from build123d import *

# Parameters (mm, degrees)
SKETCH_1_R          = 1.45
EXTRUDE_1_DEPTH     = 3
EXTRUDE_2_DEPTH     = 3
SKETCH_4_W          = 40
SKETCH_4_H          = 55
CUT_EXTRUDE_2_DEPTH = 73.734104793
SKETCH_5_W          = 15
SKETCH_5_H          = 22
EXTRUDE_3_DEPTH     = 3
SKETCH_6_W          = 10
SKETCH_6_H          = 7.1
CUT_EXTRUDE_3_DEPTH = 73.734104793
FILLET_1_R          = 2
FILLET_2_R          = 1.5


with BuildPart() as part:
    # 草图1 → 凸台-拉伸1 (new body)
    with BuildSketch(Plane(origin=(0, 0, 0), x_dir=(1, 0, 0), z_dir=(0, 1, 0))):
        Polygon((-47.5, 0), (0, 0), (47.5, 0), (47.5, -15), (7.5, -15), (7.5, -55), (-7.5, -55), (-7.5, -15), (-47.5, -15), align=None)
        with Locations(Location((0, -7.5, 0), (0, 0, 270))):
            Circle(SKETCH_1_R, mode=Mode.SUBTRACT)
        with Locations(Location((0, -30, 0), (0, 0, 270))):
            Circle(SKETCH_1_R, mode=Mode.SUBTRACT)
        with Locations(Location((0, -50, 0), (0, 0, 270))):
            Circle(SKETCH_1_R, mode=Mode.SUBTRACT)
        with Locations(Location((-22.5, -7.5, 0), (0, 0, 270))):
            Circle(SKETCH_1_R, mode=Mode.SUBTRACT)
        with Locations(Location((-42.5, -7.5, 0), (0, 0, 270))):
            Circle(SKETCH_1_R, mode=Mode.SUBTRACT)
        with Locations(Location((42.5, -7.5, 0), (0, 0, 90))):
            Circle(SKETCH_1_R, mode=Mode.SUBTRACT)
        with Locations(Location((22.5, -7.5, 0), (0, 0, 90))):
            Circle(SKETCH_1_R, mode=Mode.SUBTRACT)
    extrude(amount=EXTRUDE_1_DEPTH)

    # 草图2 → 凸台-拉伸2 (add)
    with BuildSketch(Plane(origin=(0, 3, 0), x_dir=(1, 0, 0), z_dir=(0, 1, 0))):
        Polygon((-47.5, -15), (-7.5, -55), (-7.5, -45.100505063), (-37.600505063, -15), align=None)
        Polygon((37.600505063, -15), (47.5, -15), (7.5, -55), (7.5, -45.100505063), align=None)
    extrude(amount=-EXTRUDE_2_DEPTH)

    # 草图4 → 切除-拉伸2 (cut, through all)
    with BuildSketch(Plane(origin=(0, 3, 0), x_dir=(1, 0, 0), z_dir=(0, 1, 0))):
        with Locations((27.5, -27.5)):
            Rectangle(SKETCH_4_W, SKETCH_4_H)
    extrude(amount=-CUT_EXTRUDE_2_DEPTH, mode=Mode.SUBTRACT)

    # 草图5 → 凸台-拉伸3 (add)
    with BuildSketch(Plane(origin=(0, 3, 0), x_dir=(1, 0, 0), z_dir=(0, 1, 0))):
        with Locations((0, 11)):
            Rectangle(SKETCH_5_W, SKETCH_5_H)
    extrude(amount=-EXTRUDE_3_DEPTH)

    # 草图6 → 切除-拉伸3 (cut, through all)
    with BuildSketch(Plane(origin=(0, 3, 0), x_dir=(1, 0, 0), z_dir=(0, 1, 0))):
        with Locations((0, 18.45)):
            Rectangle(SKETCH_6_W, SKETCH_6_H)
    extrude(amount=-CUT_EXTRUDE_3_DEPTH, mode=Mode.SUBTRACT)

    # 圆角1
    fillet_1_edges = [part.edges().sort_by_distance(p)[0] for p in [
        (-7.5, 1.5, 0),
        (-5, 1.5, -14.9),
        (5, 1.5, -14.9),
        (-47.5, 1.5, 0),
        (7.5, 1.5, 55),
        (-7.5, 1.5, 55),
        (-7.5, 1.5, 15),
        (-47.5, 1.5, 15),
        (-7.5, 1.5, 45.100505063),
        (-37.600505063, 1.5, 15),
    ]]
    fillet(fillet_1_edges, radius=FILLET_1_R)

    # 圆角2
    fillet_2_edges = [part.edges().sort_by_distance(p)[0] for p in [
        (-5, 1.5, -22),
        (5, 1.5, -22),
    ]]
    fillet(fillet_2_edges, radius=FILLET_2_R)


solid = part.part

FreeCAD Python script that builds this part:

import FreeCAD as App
import Part
import Sketcher

V = App.Vector


def edges_at(feature, points):
    """Names of the edges that pass closest to the given points."""
    edges = feature.Shape.Edges
    near = lambda p: min(range(len(edges)), key=lambda i: edges[i].distToShape(Part.Vertex(*p))[0])
    return sorted({f"Edge{near(p) + 1}" for p in points})


def add_polygon(sketch, points):
    """Adds a closed chain of lines whose ends are joined by coincident constraints."""
    first, n = sketch.GeometryCount, len(points)
    for a, b in zip(points, points[1:] + points[:1]):
        sketch.addGeometry(Part.LineSegment(App.Vector(*a, 0), App.Vector(*b, 0)), False)
    for i in range(n):
        sketch.addConstraint(Sketcher.Constraint("Coincident", first + i, 2, first + (i + 1) % n, 1))

doc = App.newDocument("Part")
body = doc.addObject("PartDesign::Body", "Body")

# Sketch on XZ plane
sketch1 = body.newObject("Sketcher::SketchObject", "Sketch")
sketch1.AttachmentSupport = (doc.getObject("XZ_Plane"), [""])
sketch1.MapMode = "FlatFace"
add_polygon(sketch1, [(47.5, 0), (-47.5, 0), (-47.5, 15), (-7.5, 15), (-7.5, 55), (7.5, 55), (7.5, 15), (47.5, 15)])  # lines 0-7
sketch1.addGeometry(Part.Circle(V(0, 50, 0), V(0, 0, 1), 1.4), False)  # 8
sketch1.addGeometry(Part.Circle(V(0, 30, 0), V(0, 0, 1), 1.4), False)  # 9
sketch1.addGeometry(Part.Circle(V(42.5, 7.5, 0), V(0, 0, 1), 1.4), False)  # 10
sketch1.addGeometry(Part.Circle(V(22.5, 7.5, 0), V(0, 0, 1), 1.4), False)  # 11
sketch1.addGeometry(Part.Circle(V(0, 7.5, 0), V(0, 0, 1), 1.4), False)  # 12
sketch1.addGeometry(Part.Circle(V(-22.5, 7.5, 0), V(0, 0, 1), 1.4), False)  # 13
sketch1.addGeometry(Part.Circle(V(-42.5, 7.5, 0), V(0, 0, 1), 1.4), False)  # 14
sketch1.addConstraint([
    Sketcher.Constraint("Horizontal", 0),
    Sketcher.Constraint("Vertical", 1),
    Sketcher.Constraint("Horizontal", 2),
    Sketcher.Constraint("Vertical", 3),
    Sketcher.Constraint("Horizontal", 4),
    Sketcher.Constraint("Vertical", 5),
    Sketcher.Constraint("Horizontal", 6),
    Sketcher.Constraint("Vertical", 7),
    Sketcher.Constraint("Equal", 8, 9),
    Sketcher.Constraint("Equal", 9, 10),
    Sketcher.Constraint("Equal", 10, 11),
    Sketcher.Constraint("Equal", 11, 12),
    Sketcher.Constraint("Equal", 12, 13),
    Sketcher.Constraint("Equal", 13, 14),
    Sketcher.Constraint("Symmetric", 0, 2, 7, 2, -1, 1),
    Sketcher.Constraint("Symmetric", 11, 3, 13, 3, -2),
    Sketcher.Constraint("Symmetric", 10, 3, 14, 3, -2),
    Sketcher.Constraint("Symmetric", 2, 2, 5, 2, -2),
    Sketcher.Constraint("PointOnObject", 8, 3, -2),
    Sketcher.Constraint("PointOnObject", 9, 3, -2),
    Sketcher.Constraint("PointOnObject", 12, 3, -2),
    Sketcher.Constraint("Horizontal", 10, 3, 11, 3),
    Sketcher.Constraint("Horizontal", 11, 3, 12, 3),
    Sketcher.Constraint("Equal", 4, 1),
    Sketcher.Constraint("Equal", 6, 3),
    Sketcher.Constraint("Diameter", 8, 2.9),
    Sketcher.Constraint("DistanceX", 0, 2, 0, 1, 95.0),
    Sketcher.Constraint("DistanceX", 2, 1, 2, 2, 40.0),
    Sketcher.Constraint("DistanceY", -1, 1, 8, 3, 50.0),
    Sketcher.Constraint("DistanceY", -1, 1, 9, 3, 30.0),
    Sketcher.Constraint("DistanceX", 11, 3, 10, 3, 20.0),
    Sketcher.Constraint("DistanceX", 13, 3, 11, 3, 45.0),
    Sketcher.Constraint("DistanceY", -1, 1, 10, 3, 7.5),
])
pad1 = body.newObject("PartDesign::Pad", "Pad")
pad1.Profile = sketch1
pad1.Length = 3
pad1.Reversed = True

# Sketch on XZ plane
sketch2 = body.newObject("Sketcher::SketchObject", "Sketch001")
sketch2.AttachmentSupport = (doc.getObject("XZ_Plane"), [""])
sketch2.MapMode = "FlatFace"
sketch2.AttachmentOffset = App.Placement(V(0, 0, -3), App.Rotation())
add_polygon(sketch2, [(-48, 15), (-8, 55), (-8, 45), (-38, 15)])  # lines 0-3
add_polygon(sketch2, [(48, 15), (38, 15), (8, 45), (8, 55)])  # lines 4-7
sketch2.addConstraint([
    Sketcher.Constraint("Vertical", 1),
    Sketcher.Constraint("Horizontal", 3),
    Sketcher.Constraint("Horizontal", 4),
    Sketcher.Constraint("Vertical", 6),
    Sketcher.Constraint("Symmetric", 2, 2, 4, 2, -2),
    Sketcher.Constraint("Symmetric", 1, 2, 5, 2, -2),
    Sketcher.Constraint("Parallel", 0, 2),
    Sketcher.Constraint("Perpendicular", 2, 5),
    Sketcher.Constraint("Parallel", 5, 7),
    Sketcher.Constraint("Horizontal", 0, 2, 6, 2),
    Sketcher.Constraint("DistanceY", -1, 1, 0, 2, 55.0),
    Sketcher.Constraint("DistanceY", -1, 1, 2, 2, 15.0),
    Sketcher.Constraint("DistanceX", 1, 2, 5, 2, 15.0),
    Sketcher.Constraint("DistanceX", 3, 2, 3, 1, 9.899495),
])
pad2 = body.newObject("PartDesign::Pad", "Pad001")
pad2.Profile = sketch2
pad2.Length = 3

# Sketch on XZ plane
sketch3 = body.newObject("Sketcher::SketchObject", "Sketch002")
sketch3.AttachmentSupport = (doc.getObject("XZ_Plane"), [""])
sketch3.MapMode = "FlatFace"
sketch3.AttachmentOffset = App.Placement(V(0, 0, -3), App.Rotation())
add_polygon(sketch3, [(8, 0), (8, 55), (48, 55), (48, 0)])  # lines 0-3
sketch3.addConstraint([
    Sketcher.Constraint("Vertical", 0),
    Sketcher.Constraint("Horizontal", 1),
    Sketcher.Constraint("Vertical", 2),
    Sketcher.Constraint("Horizontal", 3),
    Sketcher.Constraint("PointOnObject", 2, 2, -1),
    Sketcher.Constraint("DistanceX", 1, 1, 1, 2, 40.0),
    Sketcher.Constraint("DistanceY", 0, 1, 0, 2, 55.0),
    Sketcher.Constraint("DistanceX", -1, 1, 0, 2, 7.5),
])
pocket1 = body.newObject("PartDesign::Pocket", "Pocket")
pocket1.Profile = sketch3
pocket1.Type = "ThroughAll"
pocket1.Reversed = True

# Sketch on XZ plane
sketch4 = body.newObject("Sketcher::SketchObject", "Sketch003")
sketch4.AttachmentSupport = (doc.getObject("XZ_Plane"), [""])
sketch4.MapMode = "FlatFace"
sketch4.AttachmentOffset = App.Placement(V(0, 0, -3), App.Rotation())
add_polygon(sketch4, [(-8, -22), (-8, 0), (8, 0), (8, -22)])  # lines 0-3
sketch4.addConstraint([
    Sketcher.Constraint("Vertical", 0),
    Sketcher.Constraint("Horizontal", 1),
    Sketcher.Constraint("Vertical", 2),
    Sketcher.Constraint("Horizontal", 3),
    Sketcher.Constraint("Symmetric", 0, 2, 1, 2, -1, 1),
    Sketcher.Constraint("DistanceX", 1, 1, 1, 2, 15.0),
    Sketcher.Constraint("DistanceY", 0, 1, 0, 2, 22.0),
])
pad3 = body.newObject("PartDesign::Pad", "Pad002")
pad3.Profile = sketch4
pad3.Length = 3

# Sketch on XZ plane
sketch5 = body.newObject("Sketcher::SketchObject", "Sketch004")
sketch5.AttachmentSupport = (doc.getObject("XZ_Plane"), [""])
sketch5.MapMode = "FlatFace"
sketch5.AttachmentOffset = App.Placement(V(0, 0, -3), App.Rotation())
add_polygon(sketch5, [(-5, -22), (-5, -15), (5, -15), (5, -22)])  # lines 0-3
sketch5.addConstraint([
    Sketcher.Constraint("Vertical", 0),
    Sketcher.Constraint("Horizontal", 1),
    Sketcher.Constraint("Vertical", 2),
    Sketcher.Constraint("Horizontal", 3),
    Sketcher.Constraint("DistanceX", 1, 1, 1, 2, 10.0),
    Sketcher.Constraint("DistanceY", 0, 1, 0, 2, 7.1),
    Sketcher.Constraint("DistanceX", 0, 2, -1, 1, 5.0),
    Sketcher.Constraint("DistanceY", 2, 2, -1, 1, 22.0),
])
pocket2 = body.newObject("PartDesign::Pocket", "Pocket001")
pocket2.Profile = sketch5
pocket2.Type = "ThroughAll"
pocket2.Reversed = True
doc.recompute()

fillet = body.newObject("PartDesign::Fillet", "Fillet")
fillet.Base = (pocket2, edges_at(pocket2, [
    (-7.5, 1.5, 0),
    (-5, 1.5, -14.9),
    (5, 1.5, -14.9),
    (-47.5, 1.5, 0),
    (7.5, 1.5, 55),
    (-7.5, 1.5, 55),
    (-7.5, 1.5, 15),
    (-47.5, 1.5, 15),
    (-7.5, 1.5, 45.101),
    (-37.601, 1.5, 15),
]))
fillet.Radius = 2
doc.recompute()

fillet2 = body.newObject("PartDesign::Fillet", "Fillet001")
fillet2.Base = (fillet, edges_at(fillet, [(-5, 1.5, -22), (5, 1.5, -22)]))
fillet2.Radius = 1.5

doc.recompute()
